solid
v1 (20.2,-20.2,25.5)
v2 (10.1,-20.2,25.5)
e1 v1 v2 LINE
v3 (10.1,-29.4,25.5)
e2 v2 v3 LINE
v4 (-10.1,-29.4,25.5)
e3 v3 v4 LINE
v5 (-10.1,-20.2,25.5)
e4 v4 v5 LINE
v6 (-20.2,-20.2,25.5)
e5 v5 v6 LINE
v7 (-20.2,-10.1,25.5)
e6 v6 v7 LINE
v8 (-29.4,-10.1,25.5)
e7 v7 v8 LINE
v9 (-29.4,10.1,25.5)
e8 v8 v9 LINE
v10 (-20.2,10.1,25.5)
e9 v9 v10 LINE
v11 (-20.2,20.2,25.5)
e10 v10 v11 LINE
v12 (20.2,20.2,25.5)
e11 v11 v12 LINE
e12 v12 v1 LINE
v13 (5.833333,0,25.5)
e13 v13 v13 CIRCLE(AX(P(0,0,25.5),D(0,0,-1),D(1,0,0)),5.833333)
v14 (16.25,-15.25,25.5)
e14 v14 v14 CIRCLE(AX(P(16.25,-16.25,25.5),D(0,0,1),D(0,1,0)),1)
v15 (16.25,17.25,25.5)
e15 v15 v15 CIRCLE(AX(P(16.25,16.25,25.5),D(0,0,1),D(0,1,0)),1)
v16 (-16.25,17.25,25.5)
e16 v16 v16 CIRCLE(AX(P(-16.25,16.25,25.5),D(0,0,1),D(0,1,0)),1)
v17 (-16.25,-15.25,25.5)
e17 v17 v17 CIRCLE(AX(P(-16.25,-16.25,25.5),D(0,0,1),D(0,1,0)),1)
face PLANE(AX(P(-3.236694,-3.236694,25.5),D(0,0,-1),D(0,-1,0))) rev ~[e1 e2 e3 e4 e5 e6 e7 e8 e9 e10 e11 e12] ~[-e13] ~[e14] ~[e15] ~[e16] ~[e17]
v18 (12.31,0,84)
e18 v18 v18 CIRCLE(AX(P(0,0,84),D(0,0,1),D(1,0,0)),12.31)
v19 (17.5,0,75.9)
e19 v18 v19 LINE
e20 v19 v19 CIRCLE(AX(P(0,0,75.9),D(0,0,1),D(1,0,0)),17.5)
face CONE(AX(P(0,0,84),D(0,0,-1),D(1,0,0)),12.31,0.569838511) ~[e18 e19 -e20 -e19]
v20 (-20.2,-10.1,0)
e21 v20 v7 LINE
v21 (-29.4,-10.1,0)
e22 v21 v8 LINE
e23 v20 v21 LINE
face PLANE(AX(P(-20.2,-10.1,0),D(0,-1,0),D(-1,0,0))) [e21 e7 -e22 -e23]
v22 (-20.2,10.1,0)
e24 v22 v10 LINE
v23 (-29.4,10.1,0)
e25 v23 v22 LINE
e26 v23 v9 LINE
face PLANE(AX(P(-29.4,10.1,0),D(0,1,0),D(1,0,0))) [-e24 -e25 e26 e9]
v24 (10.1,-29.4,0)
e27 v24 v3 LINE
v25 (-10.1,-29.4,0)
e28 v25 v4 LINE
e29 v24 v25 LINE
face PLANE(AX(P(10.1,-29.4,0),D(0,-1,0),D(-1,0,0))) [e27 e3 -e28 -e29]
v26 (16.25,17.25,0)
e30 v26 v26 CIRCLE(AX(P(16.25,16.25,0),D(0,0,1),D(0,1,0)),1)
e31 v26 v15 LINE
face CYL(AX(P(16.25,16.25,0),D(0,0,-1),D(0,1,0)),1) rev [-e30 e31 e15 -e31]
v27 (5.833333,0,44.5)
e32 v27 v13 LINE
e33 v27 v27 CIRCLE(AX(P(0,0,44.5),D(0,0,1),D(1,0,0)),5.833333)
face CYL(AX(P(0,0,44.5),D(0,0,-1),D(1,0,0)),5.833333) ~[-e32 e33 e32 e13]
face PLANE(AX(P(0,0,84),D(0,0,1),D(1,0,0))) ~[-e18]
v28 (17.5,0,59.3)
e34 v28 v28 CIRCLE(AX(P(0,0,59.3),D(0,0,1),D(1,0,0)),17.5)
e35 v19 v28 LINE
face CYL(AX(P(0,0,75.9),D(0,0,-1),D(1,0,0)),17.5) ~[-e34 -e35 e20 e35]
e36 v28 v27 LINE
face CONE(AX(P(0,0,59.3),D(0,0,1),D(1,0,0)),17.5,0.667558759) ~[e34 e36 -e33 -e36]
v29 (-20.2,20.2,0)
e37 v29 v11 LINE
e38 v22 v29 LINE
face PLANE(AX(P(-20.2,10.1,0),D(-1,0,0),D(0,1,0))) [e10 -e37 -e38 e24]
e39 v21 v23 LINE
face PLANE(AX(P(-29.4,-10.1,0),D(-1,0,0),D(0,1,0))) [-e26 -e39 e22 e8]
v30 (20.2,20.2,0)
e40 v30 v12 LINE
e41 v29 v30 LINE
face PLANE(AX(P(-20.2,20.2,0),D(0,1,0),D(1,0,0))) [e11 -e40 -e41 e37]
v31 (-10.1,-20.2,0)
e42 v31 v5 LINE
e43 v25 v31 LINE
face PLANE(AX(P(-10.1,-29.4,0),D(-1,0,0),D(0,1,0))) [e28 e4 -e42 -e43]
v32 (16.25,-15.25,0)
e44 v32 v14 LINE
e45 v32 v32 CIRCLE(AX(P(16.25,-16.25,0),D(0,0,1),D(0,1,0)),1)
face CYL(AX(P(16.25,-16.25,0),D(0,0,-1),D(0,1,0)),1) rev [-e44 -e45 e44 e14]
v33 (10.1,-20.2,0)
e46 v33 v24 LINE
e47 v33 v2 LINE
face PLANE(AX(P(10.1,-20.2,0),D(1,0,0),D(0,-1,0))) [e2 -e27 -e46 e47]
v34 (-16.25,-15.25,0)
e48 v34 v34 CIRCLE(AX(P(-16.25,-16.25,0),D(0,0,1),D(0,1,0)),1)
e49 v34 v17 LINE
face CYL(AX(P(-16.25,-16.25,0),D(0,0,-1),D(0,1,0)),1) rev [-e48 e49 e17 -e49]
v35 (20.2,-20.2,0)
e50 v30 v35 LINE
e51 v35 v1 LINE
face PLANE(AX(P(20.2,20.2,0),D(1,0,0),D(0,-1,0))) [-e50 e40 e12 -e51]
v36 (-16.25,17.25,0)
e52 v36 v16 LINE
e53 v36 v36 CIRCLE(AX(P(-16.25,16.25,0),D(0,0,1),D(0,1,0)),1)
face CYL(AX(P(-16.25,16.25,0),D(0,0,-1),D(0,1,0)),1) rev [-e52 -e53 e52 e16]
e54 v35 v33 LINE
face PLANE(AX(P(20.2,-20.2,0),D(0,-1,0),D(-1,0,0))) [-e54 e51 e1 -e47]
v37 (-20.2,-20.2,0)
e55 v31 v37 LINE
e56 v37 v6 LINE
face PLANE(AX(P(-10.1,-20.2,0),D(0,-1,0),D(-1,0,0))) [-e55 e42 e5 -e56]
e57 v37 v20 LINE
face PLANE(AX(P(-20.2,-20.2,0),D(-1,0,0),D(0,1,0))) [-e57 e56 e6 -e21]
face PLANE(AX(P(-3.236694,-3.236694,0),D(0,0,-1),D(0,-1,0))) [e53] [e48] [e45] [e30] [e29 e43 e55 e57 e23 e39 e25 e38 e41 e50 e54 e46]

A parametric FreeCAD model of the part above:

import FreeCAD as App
import Part
import Sketcher

V = App.Vector
Q = App.Units.Quantity


def add_polygon(sketch, points):
    """Adds a closed chain of lines whose ends are joined by coincident constraints."""
    first, n = sketch.GeometryCount, len(points)
    for a, b in zip(points, points[1:] + points[:1]):
        sketch.addGeometry(Part.LineSegment(App.Vector(*a, 0), App.Vector(*b, 0)), False)
    for i in range(n):
        sketch.addConstraint(Sketcher.Constraint("Coincident", first + i, 2, first + (i + 1) % n, 1))

doc = App.newDocument("Part")
params = doc.addObject("Spreadsheet::Sheet", "Params")
for row, (alias, value) in enumerate([
    ("sketch1_diameter", "2 mm"),
    ("sketch1_width", "40.4 mm"),
    ("sketch1_width2", "9.2 mm"),
    ("sketch1_width3", "10.1 mm"),
    ("pad1_length", "25.5 mm"),
    ("sketch2_height", "16.6 mm"),
    ("sketch2_width", "12.31 mm"),
    ("sketch2_height2", "71.25 mm"),
    ("sketch2_height3", "31.75 mm"),
    ("revolution_angle", "360 deg"),
], start=1):
    params.set(f"A{row}", alias)
    params.set(f"B{row}", "=" + value)
    params.setAlias(f"B{row}", alias)

body = doc.addObject("PartDesign::Body", "Body")

# Sketch on XY plane
sketch1 = body.newObject("Sketcher::SketchObject", "Sketch")
sketch1.AttachmentSupport = (doc.getObject("XY_Plane"), [""])
sketch1.MapMode = "FlatFace"
add_polygon(sketch1, [(20.2, 20.2), (-20.2, 20.2), (-20.2, 10.1), (-29.4, 10.1), (-29.4, -10.1), (-20.2, -10.1), (-20.2, -20.2), (-10.1, -20.2), (-10.1, -29.4), (10.1, -29.4), (10.1, -20.2), (20.2, -20.2)])  # lines 0-11
sketch1.addGeometry(Part.Circle(V(16.25, 16.25, 0), V(0, 0, 1), 1), False)  # 12
sketch1.addGeometry(Part.Circle(V(16.25, -16.25, 0), V(0, 0, 1), 1), False)  # 13
sketch1.addGeometry(Part.Circle(V(-16.25, 16.25, 0), V(0, 0, 1), 1), False)  # 14
sketch1.addGeometry(Part.Circle(V(-16.25, -16.25, 0), V(0, 0, 1), 1), False)  # 15
sketch1.addConstraint(Sketcher.Constraint("Horizontal", 0))
sketch1.addConstraint(Sketcher.Constraint("Vertical", 1))
sketch1.addConstraint(Sketcher.Constraint("Horizontal", 2))
sketch1.addConstraint(Sketcher.Constraint("Vertical", 3))
sketch1.addConstraint(Sketcher.Constraint("Horizontal", 4))
sketch1.addConstraint(Sketcher.Constraint("Vertical", 5))
sketch1.addConstraint(Sketcher.Constraint("Horizontal", 6))
sketch1.addConstraint(Sketcher.Constraint("Vertical", 7))
sketch1.addConstraint(Sketcher.Constraint("Horizontal", 8))
sketch1.addConstraint(Sketcher.Constraint("Vertical", 9))
sketch1.addConstraint(Sketcher.Constraint("Horizontal", 10))
sketch1.addConstraint(Sketcher.Constraint("Vertical", 11))
sketch1.addConstraint(Sketcher.Constraint("Equal", 12, 13))
sketch1.addConstraint(Sketcher.Constraint("Equal", 13, 14))
sketch1.addConstraint(Sketcher.Constraint("Equal", 14, 15))
sketch1.addConstraint(Sketcher.Constraint("Symmetric", 13, 3, 14, 3, -1, 1))
sketch1.addConstraint(Sketcher.Constraint("Symmetric", 12, 3, 15, 3, -1, 1))
sketch1.addConstraint(Sketcher.Constraint("Symmetric", 0, 2, 10, 2, -1, 1))
sketch1.addConstraint(Sketcher.Constraint("Symmetric", 5, 2, 11, 2, -1, 1))
sketch1.addConstraint(Sketcher.Constraint("Symmetric", 12, 3, 14, 3, -2))
sketch1.addConstraint(Sketcher.Constraint("Equal", 6, 10))
sketch1.addConstraint(Sketcher.Constraint("Equal", 10, 1))
sketch1.addConstraint(Sketcher.Constraint("Equal", 8, 3))
sketch1.addConstraint(Sketcher.Constraint("Equal", 1, 5))
sketch1.addConstraint(Sketcher.Constraint("Equal", 4, 7))
sketch1.addConstraint(Sketcher.Constraint("Diameter", 12, Q("2 mm")))
sketch1.addConstraint(Sketcher.Constraint("DistanceX", 0, 2, 0, 1, Q("40.4 mm")))
sketch1.addConstraint(Sketcher.Constraint("DistanceX", 2, 2, 2, 1, Q("9.2 mm")))
sketch1.addConstraint(Sketcher.Constraint("DistanceX", 6, 1, 6, 2, Q("10.1 mm")))
sketch1.addConstraint(Sketcher.Constraint("DistanceY", 13, 3, 12, 3, Q("32.5 mm")))
sketch1.addConstraint(Sketcher.Constraint("DistanceX", 14, 3, 12, 3, Q("32.5 mm")))
sketch1.setExpression("Constraints[37]", "Params.sketch1_diameter")
sketch1.setExpression("Constraints[38]", "Params.sketch1_width")
sketch1.setExpression("Constraints[39]", "Params.sketch1_width2")
sketch1.setExpression("Constraints[40]", "Params.sketch1_width3")
pad1 = body.newObject("PartDesign::Pad", "Pad")
pad1.Profile = sketch1
pad1.setExpression("Length", "Params.pad1_length")

# Sketch on XZ plane
sketch2 = body.newObject("Sketcher::SketchObject", "Sketch001")
sketch2.AttachmentSupport = (doc.getObject("XZ_Plane"), [""])
sketch2.MapMode = "FlatFace"
add_polygon(sketch2, [(12.31, 84), (0, 84), (0, 12.75), (5.833333, 12.75), (5.833333, 44.5), (17.5, 59.3), (17.5, 75.9)])  # lines 0-6
sketch2.addConstraint(Sketcher.Constraint("Horizontal", 0))
sketch2.addConstraint(Sketcher.Constraint("Vertical", 1))
sketch2.addConstraint(Sketcher.Constraint("Horizontal", 2))
sketch2.addConstraint(Sketcher.Constraint("Vertical", 3))
sketch2.addConstraint(Sketcher.Constraint("Vertical", 5))
sketch2.addConstraint(Sketcher.Constraint("PointOnObject", 0, 2, -2))
sketch2.addConstraint(Sketcher.Constraint("DistanceY", 5, 1, 5, 2, Q("16.6 mm")))
sketch2.addConstraint(Sketcher.Constraint("DistanceY", -1, 1, 0, 2, Q("84 mm")))
sketch2.addConstraint(Sketcher.Constraint("DistanceX", 0, 2, 0, 1, Q("12.31 mm")))
sketch2.addConstraint(Sketcher.Constraint("DistanceY", 1, 2, 1, 1, Q("71.25 mm")))
sketch2.addConstraint(Sketcher.Constraint("DistanceY", 3, 1, 3, 2, Q("31.75 mm")))
sketch2.addConstraint(Sketcher.Constraint("DistanceX", -1, 1, 4, 2, Q("17.5 mm")))
sketch2.addConstraint(Sketcher.Constraint("DistanceY", -1, 1, 4, 2, Q("59.3 mm")))
sketch2.addConstraint(Sketcher.Constraint("DistanceX", 2, 1, 2, 2, Q("5.833333 mm")))
sketch2.setExpression("Constraints[13]", "Params.sketch2_height")
sketch2.setExpression("Constraints[15]", "Params.sketch2_width")
sketch2.setExpression("Constraints[16]", "Params.sketch2_height2")
sketch2.setExpression("Constraints[17]", "Params.sketch2_height3")
revolution = body.newObject("PartDesign::Revolution", "Revolution")
revolution.Profile = sketch2
revolution.ReferenceAxis = (sketch2, ["V_Axis"])
revolution.setExpression("Angle", "Params.revolution_angle")

doc.recompute()
